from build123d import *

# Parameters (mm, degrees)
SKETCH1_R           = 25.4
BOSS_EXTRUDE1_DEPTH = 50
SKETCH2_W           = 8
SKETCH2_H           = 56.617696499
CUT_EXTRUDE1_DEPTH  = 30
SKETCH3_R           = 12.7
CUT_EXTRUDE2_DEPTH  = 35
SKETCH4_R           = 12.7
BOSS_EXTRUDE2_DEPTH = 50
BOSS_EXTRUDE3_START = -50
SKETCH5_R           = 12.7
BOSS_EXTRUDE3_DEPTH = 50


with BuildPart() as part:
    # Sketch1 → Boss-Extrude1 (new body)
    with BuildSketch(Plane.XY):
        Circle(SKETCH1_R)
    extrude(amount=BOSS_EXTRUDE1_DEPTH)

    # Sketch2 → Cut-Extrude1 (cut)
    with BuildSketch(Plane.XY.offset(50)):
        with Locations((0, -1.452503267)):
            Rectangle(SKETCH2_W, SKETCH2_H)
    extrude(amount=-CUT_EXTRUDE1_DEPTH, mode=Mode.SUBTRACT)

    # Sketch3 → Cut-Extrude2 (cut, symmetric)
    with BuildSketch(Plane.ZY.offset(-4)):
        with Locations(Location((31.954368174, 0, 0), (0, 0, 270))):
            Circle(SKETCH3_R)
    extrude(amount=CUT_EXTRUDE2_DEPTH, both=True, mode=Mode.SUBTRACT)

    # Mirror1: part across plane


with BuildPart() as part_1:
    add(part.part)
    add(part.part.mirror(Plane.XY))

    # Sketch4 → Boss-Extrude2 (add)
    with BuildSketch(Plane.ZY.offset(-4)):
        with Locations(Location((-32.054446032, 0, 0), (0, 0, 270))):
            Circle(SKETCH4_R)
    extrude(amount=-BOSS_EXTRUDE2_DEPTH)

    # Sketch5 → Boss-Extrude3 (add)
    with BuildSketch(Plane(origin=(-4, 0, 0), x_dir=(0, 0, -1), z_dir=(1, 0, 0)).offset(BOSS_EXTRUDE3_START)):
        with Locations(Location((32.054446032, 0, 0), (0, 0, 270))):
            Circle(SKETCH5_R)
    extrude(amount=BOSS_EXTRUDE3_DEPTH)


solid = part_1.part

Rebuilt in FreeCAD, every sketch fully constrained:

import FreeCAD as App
import Part
import Sketcher
from FreeCAD import Vector

doc = App.newDocument("Part")
body = doc.addObject("PartDesign::Body", "Body")

# Sketch on XY plane
sketch1 = body.newObject("Sketcher::SketchObject", "Sketch")
sketch1.AttachmentSupport = (doc.getObject("XY_Plane"), [""])
sketch1.MapMode = "FlatFace"
sketch1.addGeometry(Part.Circle(Vector(0, 0, 0), Vector(0, 0, 1), 25), False)
sketch1.addConstraint([
    Sketcher.Constraint("Coincident", 0, 3, -1, 1),
    Sketcher.Constraint("Diameter", 0, 50.8),
])
pad1 = body.newObject("PartDesign::Pad", "Pad")
pad1.Profile = sketch1
pad1.Length = 50

# Sketch on XY plane
sketch2 = body.newObject("Sketcher::SketchObject", "Sketch001")
sketch2.AttachmentSupport = (doc.getObject("XY_Plane"), [""])
sketch2.MapMode = "FlatFace"
sketch2.AttachmentOffset = App.Placement(Vector(0, 0, 50), App.Rotation())
sketch2.addGeometry([
    Part.LineSegment(Vector(-4, 27, 0), Vector(-4, -30, 0)),
    Part.LineSegment(Vector(-4, -30, 0), Vector(4, -30, 0)),
    Part.LineSegment(Vector(4, -30, 0), Vector(4, 27, 0)),
    Part.LineSegment(Vector(4, 27, 0), Vector(-4, 27, 0)),
], False)
sketch2.addConstraint([
    Sketcher.Constraint("Coincident", 0, 2, 1, 1),
    Sketcher.Constraint("Coincident", 1, 2, 2, 1),
    Sketcher.Constraint("Coincident", 2, 2, 3, 1),
    Sketcher.Constraint("Coincident", 3, 2, 0, 1),
    Sketcher.Constraint("Vertical", 0),
    Sketcher.Constraint("Horizontal", 1),
    Sketcher.Constraint("Vertical", 2),
    Sketcher.Constraint("Horizontal", 3),
    Sketcher.Constraint("DistanceX", 1, 1, 1, 2, 8.0),
    Sketcher.Constraint("DistanceX", 0, 2, -1, 1, 4.0),
    Sketcher.Constraint("DistanceY", 0, 2, 0, 1, 56.617696),
    Sketcher.Constraint("DistanceY", 0, 2, -1, 1, 29.761352),
])
pocket1 = body.newObject("PartDesign::Pocket", "Pocket")
pocket1.Profile = sketch2
pocket1.Length = 30

# Sketch on YZ plane
sketch3 = body.newObject("Sketcher::SketchObject", "Sketch002")
sketch3.AttachmentSupport = (doc.getObject("YZ_Plane"), [""])
sketch3.MapMode = "FlatFace"
sketch3.AttachmentOffset = App.Placement(Vector(0, 0, 4), App.Rotation())
sketch3.addGeometry(Part.Circle(Vector(0, 32, 0), Vector(0, 0, 1), 13), False)
sketch3.addConstraint([
    Sketcher.Constraint("PointOnObject", 0, 3, -2),
    Sketcher.Constraint("Diameter", 0, 25.4),
    Sketcher.Constraint("DistanceY", -1, 1, 0, 3, 31.954368),
])
pocket2 = body.newObject("PartDesign::Pocket", "Pocket001")
pocket2.Profile = sketch3
pocket2.Length = 70
pocket2.Midplane = True
body2 = doc.addObject("PartDesign::Body", "Body001")
doc.recompute()

body2.BaseFeature = body
doc.recompute()

mirroring = doc.addObject("Part::Mirroring", "Mirroring")
mirroring.Source = body
mirroring.Base = Vector(0, 0, 0)
mirroring.Normal = Vector(0, 0, 1)
body3 = doc.addObject("PartDesign::Body", "Body002")
body3.BaseFeature = mirroring
boolean = body2.newObject("PartDesign::Boolean", "Boolean")
boolean.Type = "Fuse"
boolean.addObjects([body3])
doc.recompute()

# Sketch on YZ plane
sketch4 = body2.newObject("Sketcher::SketchObject", "Sketch003")
sketch4.AttachmentSupport = (doc.getObject("YZ_Plane001"), [""])
sketch4.MapMode = "FlatFace"
sketch4.AttachmentOffset = App.Placement(Vector(0, 0, 4), App.Rotation())
sketch4.addGeometry(Part.Circle(Vector(0, -32, 0), Vector(0, 0, 1), 13), False)
sketch4.addConstraint([
    Sketcher.Constraint("PointOnObject", 0, 3, -2),
    Sketcher.Constraint("Diameter", 0, 25.4),
    Sketcher.Constraint("DistanceY", 0, 3, -1, 1, 32.054446),
])
pad2 = body2.newObject("PartDesign::Pad", "Pad001")
pad2.Profile = sketch4
pad2.Length = 50

# Sketch on YZ plane
sketch5 = body2.newObject("Sketcher::SketchObject", "Sketch004")
sketch5.AttachmentSupport = (doc.getObject("YZ_Plane001"), [""])
sketch5.MapMode = "FlatFace"
sketch5.AttachmentOffset = App.Placement(Vector(0, 0, -54), App.Rotation())
sketch5.addGeometry(Part.Circle(Vector(0, -32, 0), Vector(0, 0, 1), 13), False)
sketch5.addConstraint([
    Sketcher.Constraint("PointOnObject", 0, 3, -2),
    Sketcher.Constraint("Diameter", 0, 25.4),
    Sketcher.Constraint("DistanceY", 0, 3, -1, 1, 32.054446),
])
pad3 = body2.newObject("PartDesign::Pad", "Pad002")
pad3.Profile = sketch5
pad3.Length = 50
mirroring.Visibility = False

doc.recompute()
